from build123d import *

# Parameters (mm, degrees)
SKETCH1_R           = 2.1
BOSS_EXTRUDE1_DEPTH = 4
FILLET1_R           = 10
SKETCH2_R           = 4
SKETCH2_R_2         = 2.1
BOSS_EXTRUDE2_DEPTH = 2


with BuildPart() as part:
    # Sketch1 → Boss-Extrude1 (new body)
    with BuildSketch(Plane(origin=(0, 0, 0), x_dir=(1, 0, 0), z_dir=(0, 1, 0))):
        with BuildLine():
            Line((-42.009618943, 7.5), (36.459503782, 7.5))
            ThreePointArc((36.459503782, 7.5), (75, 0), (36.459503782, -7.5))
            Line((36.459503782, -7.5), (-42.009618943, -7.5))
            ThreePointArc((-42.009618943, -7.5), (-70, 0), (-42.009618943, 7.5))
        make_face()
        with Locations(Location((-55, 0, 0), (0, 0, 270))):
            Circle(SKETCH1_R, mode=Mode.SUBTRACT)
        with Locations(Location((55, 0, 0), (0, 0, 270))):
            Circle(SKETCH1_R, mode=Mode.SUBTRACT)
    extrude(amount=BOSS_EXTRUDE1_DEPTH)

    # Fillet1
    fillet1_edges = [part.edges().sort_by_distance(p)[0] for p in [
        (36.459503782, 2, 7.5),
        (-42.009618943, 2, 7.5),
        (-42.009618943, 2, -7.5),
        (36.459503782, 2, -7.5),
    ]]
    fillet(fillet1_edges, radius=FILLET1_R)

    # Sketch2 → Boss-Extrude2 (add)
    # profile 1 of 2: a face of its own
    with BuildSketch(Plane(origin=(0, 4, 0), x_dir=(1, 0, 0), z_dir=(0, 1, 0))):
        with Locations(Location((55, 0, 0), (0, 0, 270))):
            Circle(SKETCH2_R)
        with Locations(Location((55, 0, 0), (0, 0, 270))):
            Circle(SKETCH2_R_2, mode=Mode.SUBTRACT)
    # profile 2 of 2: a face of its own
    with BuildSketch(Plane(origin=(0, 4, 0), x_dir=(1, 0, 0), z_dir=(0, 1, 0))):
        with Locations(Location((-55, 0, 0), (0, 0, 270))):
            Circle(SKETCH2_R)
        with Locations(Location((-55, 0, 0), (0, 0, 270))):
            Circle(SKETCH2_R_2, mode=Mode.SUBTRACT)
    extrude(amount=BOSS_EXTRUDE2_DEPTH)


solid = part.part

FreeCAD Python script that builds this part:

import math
import FreeCAD as App
import Part
import Sketcher
from FreeCAD import Vector
Q = App.Units.Quantity


def edges_at(feature, points):
    """Names of the edges that pass closest to the given points."""
    edges = feature.Shape.Edges
    near = lambda p: min(range(len(edges)), key=lambda i: edges[i].distToShape(Part.Vertex(*p))[0])
    return sorted({f"Edge{near(p) + 1}" for p in points})

doc = App.newDocument("Part")
params = doc.addObject("Spreadsheet::Sheet", "Params")
for row, (alias, value) in enumerate([
    ("sketch1_radius", "15 mm"),
    ("sketch1_radius2", "20 mm"),
    ("sketch1_diameter", "4.2 mm"),
    ("pad1_length", "4 mm"),
    ("fillet_radius", "10 mm"),
    ("sketch2_diameter", "8 mm"),
    ("sketch2_diameter2", "4.2 mm"),
    ("pad2_length", "2 mm"),
], start=1):
    params.set(f"A{row}", alias)
    params.set(f"B{row}", "=" + value)
    params.setAlias(f"B{row}", alias)

body = doc.addObject("PartDesign::Body", "Body")

sketch1 = body.newObject("Sketcher::SketchObject", "Sketch")
sketch1.AttachmentSupport = (doc.getObject("XZ_Plane"), [""])
sketch1.MapMode = "FlatFace"
sketch1.addGeometry(Part.LineSegment(Vector(36.5, -7.5, 0), Vector(-42, -7.5, 0)), False)
sketch1.addGeometry(Part.ArcOfCircle(Part.Circle(Vector(-55, 0, 0), Vector(0, 0, 1), 15), math.radians(30), math.radians(330)), False)
sketch1.addGeometry(Part.LineSegment(Vector(-42, 7.5, 0), Vector(36.5, 7.5, 0)), False)
sketch1.addGeometry(Part.ArcOfCircle(Part.Circle(Vector(55, 0, 0), Vector(0, 0, 1), 20), math.radians(-158), math.radians(158)), False)
sketch1.addGeometry(Part.Circle(Vector(55, 0, 0), Vector(0, 0, 1), 2.1), False)
sketch1.addGeometry(Part.Circle(Vector(-55, 0, 0), Vector(0, 0, 1), 2.1), False)
sketch1.addConstraint(Sketcher.Constraint("Coincident", 0, 2, 1, 2))
sketch1.addConstraint(Sketcher.Constraint("Coincident", 1, 1, 2, 1))
sketch1.addConstraint(Sketcher.Constraint("Coincident", 2, 2, 3, 2))
sketch1.addConstraint(Sketcher.Constraint("Coincident", 3, 1, 0, 1))
sketch1.addConstraint(Sketcher.Constraint("Horizontal", 0))
sketch1.addConstraint(Sketcher.Constraint("Horizontal", 2))
sketch1.addConstraint(Sketcher.Constraint("Coincident", 4, 3, 3, 3))
sketch1.addConstraint(Sketcher.Constraint("Coincident", 5, 3, 1, 3))
sketch1.addConstraint(Sketcher.Constraint("Equal", 4, 5))
sketch1.addConstraint(Sketcher.Constraint("Symmetric", 1, 3, 3, 3, -1, 1))
sketch1.addConstraint(Sketcher.Constraint("Symmetric", 0, 2, 1, 1, -1))
sketch1.addConstraint(Sketcher.Constraint("Radius", 1, Q("15 mm")))
sketch1.addConstraint(Sketcher.Constraint("Radius", 3, Q("20 mm")))
sketch1.addConstraint(Sketcher.Constraint("Diameter", 4, Q("4.2 mm")))
sketch1.addConstraint(Sketcher.Constraint("DistanceX", 1, 3, -1, 1, Q("55 mm")))
sketch1.addConstraint(Sketcher.Constraint("DistanceY", 0, 2, 1, 1, Q("15 mm")))
sketch1.setExpression("Constraints[11]", "Params.sketch1_radius")
sketch1.setExpression("Constraints[12]", "Params.sketch1_radius2")
sketch1.setExpression("Constraints[13]", "Params.sketch1_diameter")
pad1 = body.newObject("PartDesign::Pad", "Pad")
pad1.Profile = sketch1
pad1.setExpression("Length", "Params.pad1_length")
pad1.Reversed = True
doc.recompute()

fillet = body.newObject("PartDesign::Fillet", "Fillet")
fillet.Base = (pad1, edges_at(pad1, [
    (36.46, 2, 7.5),
    (-42.01, 2, 7.5),
    (-42.01, 2, -7.5),
    (36.46, 2, -7.5),
]))
fillet.setExpression("Radius", "Params.fillet_radius")

sketch2 = body.newObject("Sketcher::SketchObject", "Sketch001")
sketch2.AttachmentSupport = (doc.getObject("XZ_Plane"), [""])
sketch2.MapMode = "FlatFace"
sketch2.AttachmentOffset = App.Placement(Vector(0, 0, -4), App.Rotation())
sketch2.addGeometry(Part.Circle(Vector(55, 0, 0), Vector(0, 0, 1), 4), False)
sketch2.addGeometry(Part.Circle(Vector(55, 0, 0), Vector(0, 0, 1), 2.1), False)
sketch2.addGeometry(Part.Circle(Vector(-55, 0, 0), Vector(0, 0, 1), 4), False)
sketch2.addGeometry(Part.Circle(Vector(-55, 0, 0), Vector(0, 0, 1), 2.1), False)
sketch2.addConstraint(Sketcher.Constraint("Coincident", 1, 3, 0, 3))
sketch2.addConstraint(Sketcher.Constraint("Coincident", 3, 3, 2, 3))
sketch2.addConstraint(Sketcher.Constraint("Equal", 0, 2))
sketch2.addConstraint(Sketcher.Constraint("Equal", 1, 3))
sketch2.addConstraint(Sketcher.Constraint("Symmetric", 0, 3, 2, 3, -1, 1))
sketch2.addConstraint(Sketcher.Constraint("PointOnObject", 0, 3, -1))
sketch2.addConstraint(Sketcher.Constraint("Diameter", 0, Q("8 mm")))
sketch2.addConstraint(Sketcher.Constraint("Diameter", 1, Q("4.2 mm")))
sketch2.addConstraint(Sketcher.Constraint("DistanceX", -1, 1, 0, 3, Q("55 mm")))
sketch2.setExpression("Constraints[6]", "Params.sketch2_diameter")
sketch2.setExpression("Constraints[7]", "Params.sketch2_diameter2")
pad2 = body.newObject("PartDesign::Pad", "Pad001")
pad2.Profile = sketch2
pad2.setExpression("Length", "Params.pad2_length")
pad2.Reversed = True

doc.recompute()
